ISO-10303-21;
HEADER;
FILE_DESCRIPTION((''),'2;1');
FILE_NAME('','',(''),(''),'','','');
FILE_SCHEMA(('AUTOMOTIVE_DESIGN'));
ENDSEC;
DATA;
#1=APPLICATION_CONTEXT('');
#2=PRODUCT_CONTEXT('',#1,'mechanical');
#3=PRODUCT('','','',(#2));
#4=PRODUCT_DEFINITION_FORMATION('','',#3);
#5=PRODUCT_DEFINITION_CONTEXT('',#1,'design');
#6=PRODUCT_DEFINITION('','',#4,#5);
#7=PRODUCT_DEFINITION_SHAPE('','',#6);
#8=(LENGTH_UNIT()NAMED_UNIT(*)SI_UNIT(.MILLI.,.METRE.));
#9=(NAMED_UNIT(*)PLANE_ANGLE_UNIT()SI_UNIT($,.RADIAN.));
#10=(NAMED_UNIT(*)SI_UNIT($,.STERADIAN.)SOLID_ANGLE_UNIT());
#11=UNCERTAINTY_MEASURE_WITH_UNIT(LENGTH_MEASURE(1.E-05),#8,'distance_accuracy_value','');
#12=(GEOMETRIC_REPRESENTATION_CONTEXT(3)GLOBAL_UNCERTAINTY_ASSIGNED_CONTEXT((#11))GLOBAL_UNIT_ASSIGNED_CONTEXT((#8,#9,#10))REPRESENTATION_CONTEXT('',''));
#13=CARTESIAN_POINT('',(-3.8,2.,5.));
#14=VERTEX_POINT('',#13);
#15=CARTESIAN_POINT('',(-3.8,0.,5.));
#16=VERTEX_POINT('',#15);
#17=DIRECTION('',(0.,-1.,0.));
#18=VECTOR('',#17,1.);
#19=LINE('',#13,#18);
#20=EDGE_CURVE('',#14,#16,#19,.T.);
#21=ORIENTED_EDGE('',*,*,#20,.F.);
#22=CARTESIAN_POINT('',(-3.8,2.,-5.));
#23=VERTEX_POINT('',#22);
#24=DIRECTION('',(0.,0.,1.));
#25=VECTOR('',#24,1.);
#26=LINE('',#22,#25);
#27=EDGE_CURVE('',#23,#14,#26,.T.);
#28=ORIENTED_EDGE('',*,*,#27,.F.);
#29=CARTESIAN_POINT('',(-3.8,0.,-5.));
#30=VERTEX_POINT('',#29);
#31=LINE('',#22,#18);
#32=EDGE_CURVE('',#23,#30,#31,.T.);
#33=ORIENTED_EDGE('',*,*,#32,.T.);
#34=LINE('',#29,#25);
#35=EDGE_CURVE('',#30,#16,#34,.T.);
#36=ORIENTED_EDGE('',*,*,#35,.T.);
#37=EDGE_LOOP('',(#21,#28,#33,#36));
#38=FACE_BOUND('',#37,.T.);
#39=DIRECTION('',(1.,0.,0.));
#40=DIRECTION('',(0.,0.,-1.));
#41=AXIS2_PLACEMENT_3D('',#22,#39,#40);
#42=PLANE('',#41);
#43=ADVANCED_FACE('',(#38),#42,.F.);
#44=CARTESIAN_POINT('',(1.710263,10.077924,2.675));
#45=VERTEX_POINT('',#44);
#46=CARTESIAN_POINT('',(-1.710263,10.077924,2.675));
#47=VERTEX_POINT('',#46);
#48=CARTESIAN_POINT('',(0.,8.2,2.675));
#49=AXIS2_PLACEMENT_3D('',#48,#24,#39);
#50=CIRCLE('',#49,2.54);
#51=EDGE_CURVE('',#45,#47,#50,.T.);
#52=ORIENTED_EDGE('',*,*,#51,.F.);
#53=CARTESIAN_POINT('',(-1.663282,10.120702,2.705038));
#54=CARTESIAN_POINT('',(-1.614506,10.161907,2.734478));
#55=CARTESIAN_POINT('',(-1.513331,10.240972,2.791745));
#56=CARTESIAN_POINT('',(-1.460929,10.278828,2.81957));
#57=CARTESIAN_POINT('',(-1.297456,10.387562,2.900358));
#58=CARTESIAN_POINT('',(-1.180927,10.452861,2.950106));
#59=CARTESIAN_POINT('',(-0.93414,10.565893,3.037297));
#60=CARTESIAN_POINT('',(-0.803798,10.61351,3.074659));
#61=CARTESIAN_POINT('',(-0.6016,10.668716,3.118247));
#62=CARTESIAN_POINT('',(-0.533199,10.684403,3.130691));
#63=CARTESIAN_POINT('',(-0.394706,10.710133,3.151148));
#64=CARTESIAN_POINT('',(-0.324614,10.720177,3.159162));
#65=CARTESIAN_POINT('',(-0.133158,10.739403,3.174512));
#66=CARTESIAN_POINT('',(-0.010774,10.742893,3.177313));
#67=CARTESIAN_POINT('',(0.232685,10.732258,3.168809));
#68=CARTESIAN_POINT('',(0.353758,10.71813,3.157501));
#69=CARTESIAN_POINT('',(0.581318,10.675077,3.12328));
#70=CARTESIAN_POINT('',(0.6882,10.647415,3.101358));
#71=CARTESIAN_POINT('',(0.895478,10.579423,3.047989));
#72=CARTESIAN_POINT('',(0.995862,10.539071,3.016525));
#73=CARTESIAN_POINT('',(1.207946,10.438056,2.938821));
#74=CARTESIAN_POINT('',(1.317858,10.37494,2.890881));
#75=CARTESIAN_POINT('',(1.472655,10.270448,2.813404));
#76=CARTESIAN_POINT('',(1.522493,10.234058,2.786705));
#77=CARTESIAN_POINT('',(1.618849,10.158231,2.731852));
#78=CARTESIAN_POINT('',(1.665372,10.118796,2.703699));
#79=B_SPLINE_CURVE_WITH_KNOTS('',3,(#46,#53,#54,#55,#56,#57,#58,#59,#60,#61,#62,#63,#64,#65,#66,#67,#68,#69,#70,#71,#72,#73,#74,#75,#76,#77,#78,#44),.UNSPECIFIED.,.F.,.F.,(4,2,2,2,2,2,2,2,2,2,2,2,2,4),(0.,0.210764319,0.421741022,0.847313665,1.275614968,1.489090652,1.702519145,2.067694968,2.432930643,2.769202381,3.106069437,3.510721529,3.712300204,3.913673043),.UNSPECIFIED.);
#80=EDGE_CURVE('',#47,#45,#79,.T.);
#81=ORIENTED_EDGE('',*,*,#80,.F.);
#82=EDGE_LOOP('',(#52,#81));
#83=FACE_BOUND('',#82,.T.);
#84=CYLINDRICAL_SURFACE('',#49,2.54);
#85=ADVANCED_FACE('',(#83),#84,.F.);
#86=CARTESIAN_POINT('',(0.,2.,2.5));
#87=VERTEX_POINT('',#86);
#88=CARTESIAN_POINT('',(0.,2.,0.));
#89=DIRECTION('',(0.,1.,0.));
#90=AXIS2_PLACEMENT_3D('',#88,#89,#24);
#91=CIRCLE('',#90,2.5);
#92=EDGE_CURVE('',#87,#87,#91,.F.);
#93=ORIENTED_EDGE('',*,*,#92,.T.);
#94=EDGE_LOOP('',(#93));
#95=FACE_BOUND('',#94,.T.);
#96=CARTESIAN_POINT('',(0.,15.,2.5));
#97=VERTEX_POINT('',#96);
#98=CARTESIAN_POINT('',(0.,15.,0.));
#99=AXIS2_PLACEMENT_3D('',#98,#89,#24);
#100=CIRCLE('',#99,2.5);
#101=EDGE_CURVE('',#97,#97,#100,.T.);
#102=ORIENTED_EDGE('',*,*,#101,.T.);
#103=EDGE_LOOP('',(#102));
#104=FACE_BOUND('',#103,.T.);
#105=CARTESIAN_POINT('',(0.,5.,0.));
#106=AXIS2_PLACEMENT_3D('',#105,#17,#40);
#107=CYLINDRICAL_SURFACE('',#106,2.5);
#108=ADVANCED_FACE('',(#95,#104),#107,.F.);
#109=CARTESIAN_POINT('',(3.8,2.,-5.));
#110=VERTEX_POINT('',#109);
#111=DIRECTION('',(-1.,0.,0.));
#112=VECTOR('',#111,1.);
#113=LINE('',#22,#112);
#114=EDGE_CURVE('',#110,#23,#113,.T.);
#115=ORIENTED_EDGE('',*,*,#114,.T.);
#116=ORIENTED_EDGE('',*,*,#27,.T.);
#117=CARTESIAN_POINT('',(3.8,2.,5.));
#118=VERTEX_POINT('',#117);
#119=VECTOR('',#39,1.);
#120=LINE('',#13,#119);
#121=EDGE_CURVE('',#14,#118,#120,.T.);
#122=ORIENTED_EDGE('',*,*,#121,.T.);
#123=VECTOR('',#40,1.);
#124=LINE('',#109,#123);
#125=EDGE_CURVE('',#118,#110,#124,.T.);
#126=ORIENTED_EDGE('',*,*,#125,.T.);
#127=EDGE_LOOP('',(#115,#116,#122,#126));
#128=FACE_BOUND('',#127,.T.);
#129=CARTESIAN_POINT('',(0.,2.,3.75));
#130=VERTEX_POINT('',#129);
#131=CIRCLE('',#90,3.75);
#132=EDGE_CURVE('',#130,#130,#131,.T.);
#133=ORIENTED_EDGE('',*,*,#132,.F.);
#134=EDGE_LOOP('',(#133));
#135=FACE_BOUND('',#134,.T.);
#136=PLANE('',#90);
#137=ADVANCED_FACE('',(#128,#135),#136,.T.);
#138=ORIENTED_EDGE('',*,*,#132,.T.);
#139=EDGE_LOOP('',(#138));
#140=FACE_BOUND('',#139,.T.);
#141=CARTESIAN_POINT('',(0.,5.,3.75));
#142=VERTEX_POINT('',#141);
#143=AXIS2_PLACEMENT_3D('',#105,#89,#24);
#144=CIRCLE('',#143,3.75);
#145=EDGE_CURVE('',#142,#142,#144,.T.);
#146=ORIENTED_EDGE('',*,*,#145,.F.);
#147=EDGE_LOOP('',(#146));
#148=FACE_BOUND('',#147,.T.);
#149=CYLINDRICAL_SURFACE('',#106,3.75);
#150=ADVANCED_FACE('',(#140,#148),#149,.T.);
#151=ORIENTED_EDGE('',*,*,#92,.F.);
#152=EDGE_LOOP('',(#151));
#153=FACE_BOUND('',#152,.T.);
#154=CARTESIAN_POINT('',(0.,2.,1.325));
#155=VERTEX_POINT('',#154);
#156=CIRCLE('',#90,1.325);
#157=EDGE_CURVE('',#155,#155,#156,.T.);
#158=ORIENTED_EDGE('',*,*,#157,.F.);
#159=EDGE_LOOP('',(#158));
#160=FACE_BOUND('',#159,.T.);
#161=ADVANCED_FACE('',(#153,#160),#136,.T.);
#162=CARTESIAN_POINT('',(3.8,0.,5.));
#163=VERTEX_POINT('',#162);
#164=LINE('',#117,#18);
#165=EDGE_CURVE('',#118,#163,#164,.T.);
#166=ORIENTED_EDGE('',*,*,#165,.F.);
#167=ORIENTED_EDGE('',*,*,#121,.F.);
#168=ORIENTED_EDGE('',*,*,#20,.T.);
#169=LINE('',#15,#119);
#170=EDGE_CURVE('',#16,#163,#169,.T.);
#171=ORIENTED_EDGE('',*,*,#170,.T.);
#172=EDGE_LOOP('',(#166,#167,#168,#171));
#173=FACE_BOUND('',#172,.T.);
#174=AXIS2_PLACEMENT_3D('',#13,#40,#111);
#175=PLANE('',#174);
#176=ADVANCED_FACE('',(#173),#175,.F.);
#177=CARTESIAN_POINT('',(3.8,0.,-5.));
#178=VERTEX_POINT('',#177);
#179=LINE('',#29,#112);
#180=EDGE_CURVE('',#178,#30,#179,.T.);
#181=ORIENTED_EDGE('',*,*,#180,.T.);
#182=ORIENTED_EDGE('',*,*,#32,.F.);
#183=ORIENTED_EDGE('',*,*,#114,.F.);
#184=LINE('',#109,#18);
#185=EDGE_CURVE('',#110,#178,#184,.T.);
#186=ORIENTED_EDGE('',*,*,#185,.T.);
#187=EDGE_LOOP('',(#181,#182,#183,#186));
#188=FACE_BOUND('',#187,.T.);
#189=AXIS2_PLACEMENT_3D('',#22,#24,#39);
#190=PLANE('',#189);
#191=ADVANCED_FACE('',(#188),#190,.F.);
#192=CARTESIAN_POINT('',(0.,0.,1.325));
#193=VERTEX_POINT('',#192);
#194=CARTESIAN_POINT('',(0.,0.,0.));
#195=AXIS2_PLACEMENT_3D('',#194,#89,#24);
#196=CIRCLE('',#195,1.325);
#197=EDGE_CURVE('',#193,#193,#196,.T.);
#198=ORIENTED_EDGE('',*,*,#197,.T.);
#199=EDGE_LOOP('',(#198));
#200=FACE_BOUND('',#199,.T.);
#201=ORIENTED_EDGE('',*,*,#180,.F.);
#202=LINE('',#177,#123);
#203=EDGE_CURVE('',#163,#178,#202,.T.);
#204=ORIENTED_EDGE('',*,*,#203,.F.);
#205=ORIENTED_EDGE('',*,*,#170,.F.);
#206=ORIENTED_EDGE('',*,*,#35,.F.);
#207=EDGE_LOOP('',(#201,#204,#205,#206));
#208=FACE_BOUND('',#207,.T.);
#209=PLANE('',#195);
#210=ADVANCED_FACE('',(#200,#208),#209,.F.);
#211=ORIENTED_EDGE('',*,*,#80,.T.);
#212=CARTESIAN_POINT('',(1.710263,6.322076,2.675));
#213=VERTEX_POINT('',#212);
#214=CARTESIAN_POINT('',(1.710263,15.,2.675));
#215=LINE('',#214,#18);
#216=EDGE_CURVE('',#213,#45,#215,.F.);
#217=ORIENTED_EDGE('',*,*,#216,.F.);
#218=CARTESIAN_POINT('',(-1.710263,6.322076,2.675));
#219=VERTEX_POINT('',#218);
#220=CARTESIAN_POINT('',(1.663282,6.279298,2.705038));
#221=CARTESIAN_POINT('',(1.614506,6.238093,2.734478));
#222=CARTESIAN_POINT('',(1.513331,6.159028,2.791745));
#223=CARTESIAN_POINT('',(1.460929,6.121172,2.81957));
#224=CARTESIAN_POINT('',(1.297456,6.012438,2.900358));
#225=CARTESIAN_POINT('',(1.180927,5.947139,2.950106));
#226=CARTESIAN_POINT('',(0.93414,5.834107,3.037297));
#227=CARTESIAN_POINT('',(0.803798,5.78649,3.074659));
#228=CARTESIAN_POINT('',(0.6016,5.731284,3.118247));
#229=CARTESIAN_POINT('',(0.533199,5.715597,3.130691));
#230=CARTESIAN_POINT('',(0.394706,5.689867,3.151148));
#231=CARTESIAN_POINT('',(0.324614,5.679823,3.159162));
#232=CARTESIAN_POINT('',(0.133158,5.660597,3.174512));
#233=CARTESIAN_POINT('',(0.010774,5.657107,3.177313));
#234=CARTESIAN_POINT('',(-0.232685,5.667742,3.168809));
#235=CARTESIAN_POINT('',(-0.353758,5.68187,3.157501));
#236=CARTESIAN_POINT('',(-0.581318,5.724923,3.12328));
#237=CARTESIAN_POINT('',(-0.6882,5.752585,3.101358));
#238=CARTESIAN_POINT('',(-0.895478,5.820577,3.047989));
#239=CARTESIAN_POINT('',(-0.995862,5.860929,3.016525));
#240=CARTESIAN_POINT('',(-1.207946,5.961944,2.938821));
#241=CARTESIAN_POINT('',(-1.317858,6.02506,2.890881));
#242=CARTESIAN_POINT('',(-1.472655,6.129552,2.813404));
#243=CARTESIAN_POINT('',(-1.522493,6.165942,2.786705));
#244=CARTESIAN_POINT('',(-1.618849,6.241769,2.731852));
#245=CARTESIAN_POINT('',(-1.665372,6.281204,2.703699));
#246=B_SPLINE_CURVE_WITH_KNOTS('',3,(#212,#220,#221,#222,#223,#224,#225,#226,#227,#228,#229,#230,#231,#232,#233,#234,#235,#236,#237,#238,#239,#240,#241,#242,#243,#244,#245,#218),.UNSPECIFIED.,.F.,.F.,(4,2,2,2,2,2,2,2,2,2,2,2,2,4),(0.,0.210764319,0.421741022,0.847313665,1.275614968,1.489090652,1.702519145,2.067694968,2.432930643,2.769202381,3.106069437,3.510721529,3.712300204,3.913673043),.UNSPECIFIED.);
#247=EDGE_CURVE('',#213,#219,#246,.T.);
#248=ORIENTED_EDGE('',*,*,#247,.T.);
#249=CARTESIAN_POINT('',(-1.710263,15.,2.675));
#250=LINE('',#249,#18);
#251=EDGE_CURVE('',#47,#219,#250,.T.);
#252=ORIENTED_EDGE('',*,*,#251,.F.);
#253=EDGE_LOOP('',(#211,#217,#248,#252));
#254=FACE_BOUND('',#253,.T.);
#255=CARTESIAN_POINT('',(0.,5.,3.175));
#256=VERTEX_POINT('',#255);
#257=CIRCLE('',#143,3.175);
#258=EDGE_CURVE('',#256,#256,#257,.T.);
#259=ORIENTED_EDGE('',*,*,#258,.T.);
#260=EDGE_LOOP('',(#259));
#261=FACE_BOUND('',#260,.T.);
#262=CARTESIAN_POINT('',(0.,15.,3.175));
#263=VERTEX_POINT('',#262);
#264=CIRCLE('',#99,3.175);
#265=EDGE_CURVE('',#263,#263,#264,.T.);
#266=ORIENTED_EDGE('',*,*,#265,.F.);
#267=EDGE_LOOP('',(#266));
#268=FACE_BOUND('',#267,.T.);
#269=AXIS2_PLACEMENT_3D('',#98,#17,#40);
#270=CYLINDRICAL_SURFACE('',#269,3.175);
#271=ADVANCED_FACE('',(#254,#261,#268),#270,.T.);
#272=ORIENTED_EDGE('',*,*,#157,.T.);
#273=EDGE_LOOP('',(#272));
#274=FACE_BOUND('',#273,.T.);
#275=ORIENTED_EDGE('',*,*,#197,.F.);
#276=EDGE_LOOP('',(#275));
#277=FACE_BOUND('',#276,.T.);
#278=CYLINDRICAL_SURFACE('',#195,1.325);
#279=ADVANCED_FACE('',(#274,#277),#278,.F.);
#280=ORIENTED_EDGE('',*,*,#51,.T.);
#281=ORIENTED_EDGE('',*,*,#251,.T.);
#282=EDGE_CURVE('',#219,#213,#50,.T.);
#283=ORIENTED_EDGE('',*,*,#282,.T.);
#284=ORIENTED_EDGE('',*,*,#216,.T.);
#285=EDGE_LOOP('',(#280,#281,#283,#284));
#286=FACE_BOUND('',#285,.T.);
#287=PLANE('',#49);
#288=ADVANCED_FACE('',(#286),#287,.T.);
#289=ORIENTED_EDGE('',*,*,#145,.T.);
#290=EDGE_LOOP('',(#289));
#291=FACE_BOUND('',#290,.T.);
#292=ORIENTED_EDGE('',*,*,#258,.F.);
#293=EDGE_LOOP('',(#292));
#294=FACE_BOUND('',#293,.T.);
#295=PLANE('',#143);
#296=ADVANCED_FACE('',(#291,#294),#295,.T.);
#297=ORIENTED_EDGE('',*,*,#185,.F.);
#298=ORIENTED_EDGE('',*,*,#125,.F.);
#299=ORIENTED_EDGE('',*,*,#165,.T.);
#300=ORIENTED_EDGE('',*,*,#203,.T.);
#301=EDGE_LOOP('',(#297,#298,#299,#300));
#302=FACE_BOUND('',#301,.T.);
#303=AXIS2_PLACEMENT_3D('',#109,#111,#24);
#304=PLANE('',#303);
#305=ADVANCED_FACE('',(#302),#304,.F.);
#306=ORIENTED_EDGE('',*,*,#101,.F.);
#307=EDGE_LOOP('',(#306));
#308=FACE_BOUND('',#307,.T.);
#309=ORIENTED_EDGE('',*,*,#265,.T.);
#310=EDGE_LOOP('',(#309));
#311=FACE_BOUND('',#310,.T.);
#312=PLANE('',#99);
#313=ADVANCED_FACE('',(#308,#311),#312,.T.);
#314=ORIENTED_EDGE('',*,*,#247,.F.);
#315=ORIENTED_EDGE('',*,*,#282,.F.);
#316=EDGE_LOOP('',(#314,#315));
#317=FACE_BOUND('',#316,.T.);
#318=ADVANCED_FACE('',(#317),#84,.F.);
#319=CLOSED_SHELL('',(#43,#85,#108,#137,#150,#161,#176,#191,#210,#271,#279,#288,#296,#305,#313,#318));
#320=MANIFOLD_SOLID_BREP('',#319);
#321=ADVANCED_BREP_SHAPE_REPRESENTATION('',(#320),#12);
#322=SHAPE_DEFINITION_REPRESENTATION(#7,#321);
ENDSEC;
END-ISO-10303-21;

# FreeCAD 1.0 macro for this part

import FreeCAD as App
import Part
import Sketcher

V = App.Vector
Q = App.Units.Quantity

doc = App.newDocument("Part")
body = doc.addObject("PartDesign::Body", "Body")

# Sketch on XZ plane
sketch1 = doc.addObject("Sketcher::SketchObject", "Sketch")
body.addObject(sketch1)
sketch1.AttachmentSupport = (doc.XZ_Plane, [""])
sketch1.MapMode = "FlatFace"
sketch1.addGeometry([
    Part.LineSegment(V(-4, -5, 0), V(-4, 5, 0)),
    Part.LineSegment(V(-4, 5, 0), V(4, 5, 0)),
    Part.LineSegment(V(4, 5, 0), V(4, -5, 0)),
    Part.LineSegment(V(4, -5, 0), V(-4, -5, 0)),
], False)
sketch1.addConstraint([
    Sketcher.Constraint("Coincident", 0, 2, 1, 1),
    Sketcher.Constraint("Coincident", 1, 2, 2, 1),
    Sketcher.Constraint("Coincident", 2, 2, 3, 1),
    Sketcher.Constraint("Coincident", 3, 2, 0, 1),
    Sketcher.Constraint("Vertical", 0),
    Sketcher.Constraint("Horizontal", 1),
    Sketcher.Constraint("Vertical", 2),
    Sketcher.Constraint("Horizontal", 3),
    Sketcher.Constraint("Symmetric", 0, 2, 2, 2, -1, 1),
    Sketcher.Constraint("DistanceY", 0, 1, 0, 2, Q("10 mm")),
    Sketcher.Constraint("DistanceX", 1, 1, 1, 2, Q("7.6 mm")),
])
pad1 = doc.addObject("PartDesign::Pad", "Pad")
body.addObject(pad1)
pad1.Profile = sketch1
pad1.Length = 2
pad1.Reversed = True

# Sketch on XZ plane
sketch2 = doc.addObject("Sketcher::SketchObject", "Sketch001")
body.addObject(sketch2)
sketch2.AttachmentSupport = (doc.XZ_Plane, [""])
sketch2.MapMode = "FlatFace"
sketch2.AttachmentOffset = App.Placement(V(0, 0, -2), App.Rotation())
sketch2.addGeometry([
    Part.Circle(V(0, 0, 0), V(0, 0, 1), 3.8),
    Part.Circle(V(0, 0, 0), V(0, 0, 1), 2.5),
], False)
sketch2.addConstraint([
    Sketcher.Constraint("Coincident", 0, 3, -1, 1),
    Sketcher.Constraint("Coincident", 1, 3, -1, 1),
    Sketcher.Constraint("Diameter", 1, Q("5 mm")),
    Sketcher.Constraint("Diameter", 0, Q("7.5 mm")),
])
pad2 = doc.addObject("PartDesign::Pad", "Pad001")
body.addObject(pad2)
pad2.Profile = sketch2
pad2.Length = 3
pad2.Reversed = True

# Sketch on XZ plane
sketch3 = doc.addObject("Sketcher::SketchObject", "Sketch002")
body.addObject(sketch3)
sketch3.AttachmentSupport = (doc.XZ_Plane, [""])
sketch3.MapMode = "FlatFace"
sketch3.AttachmentOffset = App.Placement(V(0, 0, -5), App.Rotation())
sketch3.addGeometry([
    Part.Circle(V(0, 0, 0), V(0, 0, 1), 3.2),
    Part.Circle(V(0, 0, 0), V(0, 0, 1), 2.5),
], False)
sketch3.addConstraint([
    Sketcher.Constraint("Coincident", 0, 3, -1, 1),
    Sketcher.Constraint("Coincident", 1, 3, -1, 1),
    Sketcher.Constraint("Diameter", 1, Q("5 mm")),
    Sketcher.Constraint("Diameter", 0, Q("6.35 mm")),
])
pad3 = doc.addObject("PartDesign::Pad", "Pad002")
body.addObject(pad3)
pad3.Profile = sketch3
pad3.Length = 10
pad3.Reversed = True

# Sketch on XZ plane
sketch4 = doc.addObject("Sketcher::SketchObject", "Sketch003")
body.addObject(sketch4)
sketch4.AttachmentSupport = (doc.XZ_Plane, [""])
sketch4.MapMode = "FlatFace"
sketch4.AttachmentOffset = App.Placement(V(0, 0, -2), App.Rotation())
sketch4.addGeometry(Part.Circle(V(0, 0, 0), V(0, 0, 1), 1.3), False)
sketch4.addConstraint([
    Sketcher.Constraint("Coincident", 0, 3, -1, 1),
    Sketcher.Constraint("Diameter", 0, Q("2.65 mm")),
])
pocket1 = doc.addObject("PartDesign::Pocket", "Pocket")
body.addObject(pocket1)
pocket1.Profile = sketch4
pocket1.Type = "ThroughAll"
pocket1.Reversed = True

# Sketch on XY plane
sketch5 = doc.addObject("Sketcher::SketchObject", "Sketch004")
body.addObject(sketch5)
sketch5.AttachmentSupport = (doc.XY_Plane, [""])
sketch5.MapMode = "FlatFace"
sketch5.AttachmentOffset = App.Placement(V(0, 0, 3.175), App.Rotation())
sketch5.addGeometry(Part.Circle(V(0, 8.2, 0), V(0, 0, 1), 2.5), False)
sketch5.addConstraint([
    Sketcher.Constraint("PointOnObject", 0, 3, -2),
    Sketcher.Constraint("Diameter", 0, Q("5.08 mm")),
    Sketcher.Constraint("DistanceY", -1, 1, 0, 3, Q("8.2 mm")),
])
pocket2 = doc.addObject("PartDesign::Pocket", "Pocket001")
body.addObject(pocket2)
pocket2.Profile = sketch5
pocket2.Length = 0.5

doc.recompute()
